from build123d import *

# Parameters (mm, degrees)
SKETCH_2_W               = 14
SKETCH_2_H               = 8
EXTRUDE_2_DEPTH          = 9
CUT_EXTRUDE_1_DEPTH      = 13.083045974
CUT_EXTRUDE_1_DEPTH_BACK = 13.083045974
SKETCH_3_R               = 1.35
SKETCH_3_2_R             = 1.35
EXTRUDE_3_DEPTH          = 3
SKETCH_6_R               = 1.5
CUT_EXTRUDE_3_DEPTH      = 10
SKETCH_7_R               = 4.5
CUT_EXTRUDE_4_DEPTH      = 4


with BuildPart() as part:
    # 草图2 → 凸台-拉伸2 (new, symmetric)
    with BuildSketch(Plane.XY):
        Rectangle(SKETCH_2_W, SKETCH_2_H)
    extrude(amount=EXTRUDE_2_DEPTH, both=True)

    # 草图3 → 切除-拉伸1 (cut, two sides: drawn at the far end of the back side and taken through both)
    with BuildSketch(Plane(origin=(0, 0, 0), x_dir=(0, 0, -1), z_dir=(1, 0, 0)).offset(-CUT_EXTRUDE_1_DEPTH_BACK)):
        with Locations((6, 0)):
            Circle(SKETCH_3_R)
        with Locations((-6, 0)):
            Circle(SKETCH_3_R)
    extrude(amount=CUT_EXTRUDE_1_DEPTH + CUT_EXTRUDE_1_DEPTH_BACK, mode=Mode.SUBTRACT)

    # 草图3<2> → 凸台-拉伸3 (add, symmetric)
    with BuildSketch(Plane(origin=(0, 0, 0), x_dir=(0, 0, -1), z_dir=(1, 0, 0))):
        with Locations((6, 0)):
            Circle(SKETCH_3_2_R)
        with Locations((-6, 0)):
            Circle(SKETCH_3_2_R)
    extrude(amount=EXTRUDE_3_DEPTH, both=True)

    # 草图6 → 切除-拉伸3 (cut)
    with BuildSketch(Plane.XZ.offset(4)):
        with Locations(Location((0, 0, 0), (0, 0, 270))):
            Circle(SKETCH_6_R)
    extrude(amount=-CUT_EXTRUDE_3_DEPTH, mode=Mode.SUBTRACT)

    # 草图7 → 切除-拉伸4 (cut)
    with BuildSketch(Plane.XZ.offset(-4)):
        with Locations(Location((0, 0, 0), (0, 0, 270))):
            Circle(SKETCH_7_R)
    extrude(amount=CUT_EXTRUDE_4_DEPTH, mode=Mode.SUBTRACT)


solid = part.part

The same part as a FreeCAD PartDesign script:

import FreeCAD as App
import Part
import Sketcher
from FreeCAD import Vector
Q = App.Units.Quantity

doc = App.newDocument("Part")
body = doc.addObject("PartDesign::Body", "Body")

# Sketch on XY plane
sketch1 = doc.addObject("Sketcher::SketchObject", "Sketch")
body.addObject(sketch1)
sketch1.AttachmentSupport = (doc.XY_Plane, [""])
sketch1.MapMode = "FlatFace"
sketch1.addGeometry([
    Part.LineSegment(Vector(-7, 4, 0), Vector(-7, -4, 0)),
    Part.LineSegment(Vector(-7, -4, 0), Vector(7, -4, 0)),
    Part.LineSegment(Vector(7, -4, 0), Vector(7, 4, 0)),
    Part.LineSegment(Vector(7, 4, 0), Vector(-7, 4, 0)),
], False)
sketch1.addConstraint([
    Sketcher.Constraint("Coincident", 0, 2, 1, 1),
    Sketcher.Constraint("Coincident", 1, 2, 2, 1),
    Sketcher.Constraint("Coincident", 2, 2, 3, 1),
    Sketcher.Constraint("Coincident", 3, 2, 0, 1),
    Sketcher.Constraint("Vertical", 0),
    Sketcher.Constraint("Horizontal", 1),
    Sketcher.Constraint("Vertical", 2),
    Sketcher.Constraint("Horizontal", 3),
    Sketcher.Constraint("Symmetric", 0, 2, 2, 2, -1, 1),
    Sketcher.Constraint("DistanceX", 1, 1, 1, 2, Q("14 mm")),
    Sketcher.Constraint("DistanceY", 0, 2, 0, 1, Q("8 mm")),
])
pad1 = doc.addObject("PartDesign::Pad", "Pad")
body.addObject(pad1)
pad1.Profile = sketch1
pad1.Length = 18
pad1.Midplane = True

# Sketch on YZ plane
sketch2 = doc.addObject("Sketcher::SketchObject", "Sketch001")
body.addObject(sketch2)
sketch2.AttachmentSupport = (doc.YZ_Plane, [""])
sketch2.MapMode = "FlatFace"
sketch2.addGeometry([
    Part.Circle(Vector(0, -6, 0), Vector(0, 0, 1), 1.4),
    Part.Circle(Vector(0, 6, 0), Vector(0, 0, 1), 1.4),
], False)
sketch2.addConstraint([
    Sketcher.Constraint("Equal", 0, 1),
    Sketcher.Constraint("Symmetric", 0, 3, 1, 3, -1, 1),
    Sketcher.Constraint("PointOnObject", 0, 3, -2),
    Sketcher.Constraint("Diameter", 0, Q("2.7 mm")),
    Sketcher.Constraint("DistanceY", 0, 3, -1, 1, Q("6 mm")),
])
pocket1 = doc.addObject("PartDesign::Pocket", "Pocket")
body.addObject(pocket1)
pocket1.Profile = sketch2
pocket1.Type = "ThroughAll"
pocket1.Midplane = True

# Sketch on YZ plane
sketch3 = doc.addObject("Sketcher::SketchObject", "Sketch002")
body.addObject(sketch3)
sketch3.AttachmentSupport = (doc.YZ_Plane, [""])
sketch3.MapMode = "FlatFace"
sketch3.addGeometry([
    Part.Circle(Vector(0, -6, 0), Vector(0, 0, 1), 1.4),
    Part.Circle(Vector(0, 6, 0), Vector(0, 0, 1), 1.4),
], False)
sketch3.addConstraint([
    Sketcher.Constraint("Equal", 0, 1),
    Sketcher.Constraint("Symmetric", 0, 3, 1, 3, -1, 1),
    Sketcher.Constraint("PointOnObject", 0, 3, -2),
    Sketcher.Constraint("Diameter", 0, Q("2.7 mm")),
    Sketcher.Constraint("DistanceY", 0, 3, -1, 1, Q("6 mm")),
])
pad2 = doc.addObject("PartDesign::Pad", "Pad001")
body.addObject(pad2)
pad2.Profile = sketch3
pad2.Length = 6
pad2.Midplane = True

# Sketch on XZ plane
sketch4 = doc.addObject("Sketcher::SketchObject", "Sketch003")
body.addObject(sketch4)
sketch4.AttachmentSupport = (doc.XZ_Plane, [""])
sketch4.MapMode = "FlatFace"
sketch4.AttachmentOffset = App.Placement(Vector(0, 0, 4), App.Rotation())
sketch4.addGeometry(Part.Circle(Vector(0, 0, 0), Vector(0, 0, 1), 1.5), False)
sketch4.addConstraint([
    Sketcher.Constraint("Coincident", 0, 3, -1, 1),
    Sketcher.Constraint("Diameter", 0, Q("3 mm")),
])
pocket2 = doc.addObject("PartDesign::Pocket", "Pocket001")
body.addObject(pocket2)
pocket2.Profile = sketch4
pocket2.Length = 10

# Sketch on XZ plane
sketch5 = doc.addObject("Sketcher::SketchObject", "Sketch004")
body.addObject(sketch5)
sketch5.AttachmentSupport = (doc.XZ_Plane, [""])
sketch5.MapMode = "FlatFace"
sketch5.AttachmentOffset = App.Placement(Vector(0, 0, -4), App.Rotation())
sketch5.addGeometry(Part.Circle(Vector(0, 0, 0), Vector(0, 0, 1), 4.5), False)
sketch5.addConstraint([
    Sketcher.Constraint("Coincident", 0, 3, -1, 1),
    Sketcher.Constraint("Diameter", 0, Q("9 mm")),
])
pocket3 = doc.addObject("PartDesign::Pocket", "Pocket002")
body.addObject(pocket3)
pocket3.Profile = sketch5
pocket3.Length = 4
pocket3.Reversed = True

doc.recompute()
